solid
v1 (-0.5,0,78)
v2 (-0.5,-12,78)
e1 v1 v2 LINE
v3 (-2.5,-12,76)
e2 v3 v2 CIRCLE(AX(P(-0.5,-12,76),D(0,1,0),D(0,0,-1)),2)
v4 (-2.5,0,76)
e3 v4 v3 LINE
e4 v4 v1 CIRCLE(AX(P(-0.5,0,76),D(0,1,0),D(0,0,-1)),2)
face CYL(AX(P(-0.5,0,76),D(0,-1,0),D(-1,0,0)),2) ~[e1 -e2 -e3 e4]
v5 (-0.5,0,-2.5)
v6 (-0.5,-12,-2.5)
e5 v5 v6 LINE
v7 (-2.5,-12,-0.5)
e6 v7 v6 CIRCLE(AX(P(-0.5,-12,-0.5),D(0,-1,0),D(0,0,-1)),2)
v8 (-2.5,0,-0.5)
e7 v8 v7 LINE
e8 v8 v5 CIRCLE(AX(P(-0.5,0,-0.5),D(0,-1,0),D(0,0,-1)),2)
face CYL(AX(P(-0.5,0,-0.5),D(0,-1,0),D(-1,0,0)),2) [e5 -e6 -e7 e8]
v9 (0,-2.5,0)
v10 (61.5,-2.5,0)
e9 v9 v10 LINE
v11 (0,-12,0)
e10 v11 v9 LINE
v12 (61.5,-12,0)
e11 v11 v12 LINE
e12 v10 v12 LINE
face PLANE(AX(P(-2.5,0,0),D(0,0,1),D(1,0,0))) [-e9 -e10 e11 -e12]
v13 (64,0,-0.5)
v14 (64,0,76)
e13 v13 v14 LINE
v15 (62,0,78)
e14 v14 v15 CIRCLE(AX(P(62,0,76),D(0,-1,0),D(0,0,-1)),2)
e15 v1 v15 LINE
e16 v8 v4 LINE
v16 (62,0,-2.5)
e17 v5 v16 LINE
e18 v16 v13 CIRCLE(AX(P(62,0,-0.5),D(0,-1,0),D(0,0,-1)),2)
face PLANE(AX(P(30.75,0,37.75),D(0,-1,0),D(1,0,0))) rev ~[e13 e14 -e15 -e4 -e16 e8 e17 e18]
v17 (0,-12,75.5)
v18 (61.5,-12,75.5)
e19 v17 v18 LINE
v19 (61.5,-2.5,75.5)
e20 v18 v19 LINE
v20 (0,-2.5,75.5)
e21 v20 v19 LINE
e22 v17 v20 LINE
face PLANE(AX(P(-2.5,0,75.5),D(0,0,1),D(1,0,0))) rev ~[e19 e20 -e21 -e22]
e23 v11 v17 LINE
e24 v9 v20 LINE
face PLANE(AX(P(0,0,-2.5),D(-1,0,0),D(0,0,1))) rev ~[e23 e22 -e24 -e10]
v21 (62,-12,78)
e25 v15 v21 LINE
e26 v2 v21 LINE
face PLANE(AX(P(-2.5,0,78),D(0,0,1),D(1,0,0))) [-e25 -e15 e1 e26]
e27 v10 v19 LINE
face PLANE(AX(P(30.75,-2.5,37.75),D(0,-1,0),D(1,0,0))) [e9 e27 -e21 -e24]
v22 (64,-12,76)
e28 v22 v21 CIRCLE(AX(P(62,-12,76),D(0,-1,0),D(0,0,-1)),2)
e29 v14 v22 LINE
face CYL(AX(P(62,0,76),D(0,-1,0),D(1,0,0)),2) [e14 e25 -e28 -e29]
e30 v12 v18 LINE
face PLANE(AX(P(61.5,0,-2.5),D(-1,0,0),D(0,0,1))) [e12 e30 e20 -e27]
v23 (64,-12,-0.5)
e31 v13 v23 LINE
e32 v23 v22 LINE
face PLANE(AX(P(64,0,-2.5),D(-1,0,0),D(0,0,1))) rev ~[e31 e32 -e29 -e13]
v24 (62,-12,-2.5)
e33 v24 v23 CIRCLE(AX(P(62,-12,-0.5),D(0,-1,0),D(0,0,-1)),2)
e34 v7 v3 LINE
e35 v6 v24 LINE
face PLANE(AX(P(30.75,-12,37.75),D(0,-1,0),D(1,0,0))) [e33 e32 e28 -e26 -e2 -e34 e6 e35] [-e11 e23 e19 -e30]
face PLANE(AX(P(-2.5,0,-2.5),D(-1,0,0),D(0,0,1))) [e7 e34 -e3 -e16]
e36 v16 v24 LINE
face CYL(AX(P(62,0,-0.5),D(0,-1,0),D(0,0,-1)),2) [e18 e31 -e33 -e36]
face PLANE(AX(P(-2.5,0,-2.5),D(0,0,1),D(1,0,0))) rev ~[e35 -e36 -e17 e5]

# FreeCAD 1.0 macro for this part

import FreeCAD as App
import Part
import Sketcher


def edges_at(feature, points):
    """Names of the edges that pass closest to the given points."""
    edges = feature.Shape.Edges
    near = lambda p: min(range(len(edges)), key=lambda i: edges[i].distToShape(Part.Vertex(*p))[0])
    return sorted({f"Edge{near(p) + 1}" for p in points})


def faces_at(feature, points):
    """Names of the faces that lie closest to the given points."""
    faces = feature.Shape.Faces
    near = lambda p: min(range(len(faces)), key=lambda i: faces[i].distToShape(Part.Vertex(*p))[0])
    return sorted({f"Face{near(p) + 1}" for p in points})

doc = App.newDocument("Part")
params = doc.addObject("Spreadsheet::Sheet", "Params")
for row, (alias, value) in enumerate([
    ("sketch1_width", "66.5 mm"),
    ("sketch1_height", "80.5 mm"),
    ("pad1_length", "12 mm"),
    ("thickness_wall", "2.5 mm"),
    ("fillet_radius", "2 mm"),
], start=1):
    params.set(f"A{row}", alias)
    params.set(f"B{row}", "=" + value)
    params.setAlias(f"B{row}", alias)

body = doc.addObject("PartDesign::Body", "Body")

sketch1 = doc.addObject("Sketcher::SketchObject", "Sketch")
body.addObject(sketch1)
sketch1.AttachmentSupport = (doc.XZ_Plane, [""])
sketch1.MapMode = "FlatFace"
sketch1.addGeometry(Part.LineSegment(App.Vector(-2.5, 78, 0), App.Vector(-2.5, -2.5, 0)), False)
sketch1.addGeometry(Part.LineSegment(App.Vector(-2.5, -2.5, 0), App.Vector(64, -2.5, 0)), False)
sketch1.addGeometry(Part.LineSegment(App.Vector(64, -2.5, 0), App.Vector(64, 78, 0)), False)
sketch1.addGeometry(Part.LineSegment(App.Vector(64, 78, 0), App.Vector(-2.5, 78, 0)), False)
sketch1.addConstraint(Sketcher.Constraint("Coincident", 0, 2, 1, 1))
sketch1.addConstraint(Sketcher.Constraint("Coincident", 1, 2, 2, 1))
sketch1.addConstraint(Sketcher.Constraint("Coincident", 2, 2, 3, 1))
sketch1.addConstraint(Sketcher.Constraint("Coincident", 3, 2, 0, 1))
sketch1.addConstraint(Sketcher.Constraint("Vertical", 0))
sketch1.addConstraint(Sketcher.Constraint("Horizontal", 1))
sketch1.addConstraint(Sketcher.Constraint("Vertical", 2))
sketch1.addConstraint(Sketcher.Constraint("Horizontal", 3))
sketch1.addConstraint(Sketcher.Constraint("DistanceX", 1, 1, 1, 2, 66.5))
sketch1.addConstraint(Sketcher.Constraint("DistanceY", 0, 2, 0, 1, 80.5))
sketch1.addConstraint(Sketcher.Constraint("DistanceX", -1, 1, 1, 2, 64.0))
sketch1.addConstraint(Sketcher.Constraint("DistanceY", -1, 1, 2, 2, 78.0))
sketch1.setExpression("Constraints[8]", "Params.sketch1_width")
sketch1.setExpression("Constraints[9]", "Params.sketch1_height")
pad1 = doc.addObject("PartDesign::Pad", "Pad")
body.addObject(pad1)
pad1.Profile = sketch1
pad1.setExpression("Length", "Params.pad1_length")
doc.recompute()

thickness = doc.addObject("PartDesign::Thickness", "Thickness")
body.addObject(thickness)
thickness.Base = (pad1, faces_at(pad1, [(30.75, -12, 37.75)]))
thickness.setExpression("Value", "Params.thickness_wall")
thickness.Reversed = True
thickness.Join = "Arc"
doc.recompute()

fillet = doc.addObject("PartDesign::Fillet", "Fillet")
body.addObject(fillet)
fillet.Base = (thickness, edges_at(thickness, [
    (64, -6, 78),
    (-2.5, -6, 78),
    (64, -6, -2.5),
    (-2.5, -6, -2.5),
]))
fillet.setExpression("Radius", "Params.fillet_radius")

doc.recompute()
